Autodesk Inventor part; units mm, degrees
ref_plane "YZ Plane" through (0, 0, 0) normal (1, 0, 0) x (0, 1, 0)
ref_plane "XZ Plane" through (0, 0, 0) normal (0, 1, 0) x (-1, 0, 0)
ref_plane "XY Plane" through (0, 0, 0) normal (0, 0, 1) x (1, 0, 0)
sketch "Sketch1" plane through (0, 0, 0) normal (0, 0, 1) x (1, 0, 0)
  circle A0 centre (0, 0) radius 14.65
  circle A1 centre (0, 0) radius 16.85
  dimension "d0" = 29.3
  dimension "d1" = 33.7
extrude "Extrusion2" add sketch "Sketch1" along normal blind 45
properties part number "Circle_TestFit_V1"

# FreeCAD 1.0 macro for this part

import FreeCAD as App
import Part
import Sketcher

doc = App.newDocument("Part")
body = doc.addObject("PartDesign::Body", "Body")

sketch1 = body.newObject("Sketcher::SketchObject", "Sketch")
sketch1.AttachmentSupport = (doc.getObject("XY_Plane"), [""])
sketch1.MapMode = "FlatFace"
sketch1.addGeometry(Part.Circle(App.Vector(0, 0, 0), App.Vector(0, 0, 1), 17), False)
sketch1.addGeometry(Part.Circle(App.Vector(0, 0, 0), App.Vector(0, 0, 1), 15), False)
sketch1.addConstraint(Sketcher.Constraint("Coincident", 0, 3, -1, 1))
sketch1.addConstraint(Sketcher.Constraint("Coincident", 1, 3, -1, 1))
sketch1.addConstraint(Sketcher.Constraint("Diameter", 0, 33.7))
sketch1.addConstraint(Sketcher.Constraint("Diameter", 1, 29.3))
pad1 = body.newObject("PartDesign::Pad", "Pad")
pad1.Profile = sketch1
pad1.Length = 45

doc.recompute()
